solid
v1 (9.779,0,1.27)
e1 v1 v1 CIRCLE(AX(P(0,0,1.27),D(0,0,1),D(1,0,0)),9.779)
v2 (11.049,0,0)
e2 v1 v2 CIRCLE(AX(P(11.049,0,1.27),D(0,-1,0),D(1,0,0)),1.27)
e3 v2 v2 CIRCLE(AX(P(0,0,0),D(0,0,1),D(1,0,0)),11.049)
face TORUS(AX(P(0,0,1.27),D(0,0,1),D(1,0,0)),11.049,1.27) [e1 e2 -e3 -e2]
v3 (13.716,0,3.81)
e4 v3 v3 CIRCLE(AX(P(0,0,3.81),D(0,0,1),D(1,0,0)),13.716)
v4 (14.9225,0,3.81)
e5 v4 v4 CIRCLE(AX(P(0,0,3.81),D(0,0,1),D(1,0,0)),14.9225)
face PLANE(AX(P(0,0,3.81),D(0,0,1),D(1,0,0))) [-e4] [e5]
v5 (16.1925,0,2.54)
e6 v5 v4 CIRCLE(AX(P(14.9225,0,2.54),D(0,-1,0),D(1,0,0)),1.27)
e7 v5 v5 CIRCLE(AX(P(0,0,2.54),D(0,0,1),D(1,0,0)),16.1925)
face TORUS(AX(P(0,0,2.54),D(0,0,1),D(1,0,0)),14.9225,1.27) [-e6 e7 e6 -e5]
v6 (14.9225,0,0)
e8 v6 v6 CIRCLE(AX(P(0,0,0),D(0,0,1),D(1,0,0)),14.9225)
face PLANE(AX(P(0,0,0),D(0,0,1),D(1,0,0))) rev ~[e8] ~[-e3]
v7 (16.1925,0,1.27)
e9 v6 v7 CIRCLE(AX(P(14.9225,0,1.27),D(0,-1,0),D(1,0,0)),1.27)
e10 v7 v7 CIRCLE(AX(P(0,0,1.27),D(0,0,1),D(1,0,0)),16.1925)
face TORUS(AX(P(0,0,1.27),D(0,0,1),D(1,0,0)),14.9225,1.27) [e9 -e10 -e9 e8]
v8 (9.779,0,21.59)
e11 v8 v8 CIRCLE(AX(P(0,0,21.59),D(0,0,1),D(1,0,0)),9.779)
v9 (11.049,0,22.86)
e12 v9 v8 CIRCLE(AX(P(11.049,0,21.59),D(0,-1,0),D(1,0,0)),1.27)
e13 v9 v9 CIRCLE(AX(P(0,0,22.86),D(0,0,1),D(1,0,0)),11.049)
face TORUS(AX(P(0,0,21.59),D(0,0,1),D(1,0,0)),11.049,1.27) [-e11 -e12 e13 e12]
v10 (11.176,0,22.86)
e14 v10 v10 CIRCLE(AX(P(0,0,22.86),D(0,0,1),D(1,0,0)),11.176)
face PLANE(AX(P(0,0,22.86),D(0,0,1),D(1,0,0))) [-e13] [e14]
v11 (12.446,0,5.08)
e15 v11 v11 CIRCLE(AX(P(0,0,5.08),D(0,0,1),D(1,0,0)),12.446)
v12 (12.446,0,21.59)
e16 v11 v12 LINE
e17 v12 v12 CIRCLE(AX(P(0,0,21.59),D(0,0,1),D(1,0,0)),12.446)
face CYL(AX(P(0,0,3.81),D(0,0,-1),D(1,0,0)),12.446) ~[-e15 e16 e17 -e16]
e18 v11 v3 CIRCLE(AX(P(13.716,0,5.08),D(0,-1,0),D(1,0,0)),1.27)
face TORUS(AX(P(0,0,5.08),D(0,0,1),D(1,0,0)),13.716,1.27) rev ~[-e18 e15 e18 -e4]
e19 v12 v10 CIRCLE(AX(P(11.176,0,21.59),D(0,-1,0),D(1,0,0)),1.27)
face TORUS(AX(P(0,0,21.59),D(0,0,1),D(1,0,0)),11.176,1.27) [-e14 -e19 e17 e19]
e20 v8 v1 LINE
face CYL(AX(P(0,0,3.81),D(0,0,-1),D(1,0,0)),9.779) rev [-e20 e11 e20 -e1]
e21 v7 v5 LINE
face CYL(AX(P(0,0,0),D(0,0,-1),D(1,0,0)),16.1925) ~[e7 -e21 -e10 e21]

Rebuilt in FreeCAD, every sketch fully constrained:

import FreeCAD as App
import Part
import Sketcher

V = App.Vector
Q = App.Units.Quantity


def edges_at(feature, points):
    """Names of the edges that pass closest to the given points."""
    edges = feature.Shape.Edges
    near = lambda p: min(range(len(edges)), key=lambda i: edges[i].distToShape(Part.Vertex(*p))[0])
    return sorted({f"Edge{near(p) + 1}" for p in points})

doc = App.newDocument("Part")
params = doc.addObject("Spreadsheet::Sheet", "Params")
for row, (alias, value) in enumerate([
    ("sketch1_diameter", "0.77 in"),
    ("sketch1_diameter2", "1.275 in"),
    ("pad1_length", "0.15 in"),
    ("sketch2_diameter", "0.98 in"),
    ("sketch2_diameter2", "0.77 in"),
    ("pad2_length", "0.75 in"),
    ("fillet_radius", "0.05 in"),
], start=1):
    params.set(f"A{row}", alias)
    params.set(f"B{row}", "=" + value)
    params.setAlias(f"B{row}", alias)

body = doc.addObject("PartDesign::Body", "Body")

# Sketch on XY plane
sketch1 = body.newObject("Sketcher::SketchObject", "Sketch")
sketch1.AttachmentSupport = (doc.getObject("XY_Plane"), [""])
sketch1.MapMode = "FlatFace"
sketch1.addGeometry([
    Part.Circle(V(0, 0, 0), V(0, 0, 1), 16.1925),
    Part.Circle(V(0, 0, 0), V(0, 0, 1), 9.779),
], False)
sketch1.addConstraint([
    Sketcher.Constraint("Coincident", 0, 3, -1, 1),
    Sketcher.Constraint("Coincident", 1, 3, -1, 1),
    Sketcher.Constraint("Diameter", 1, Q("0.77 in")),
    Sketcher.Constraint("Diameter", 0, Q("1.275 in")),
])
sketch1.setExpression("Constraints[2]", "Params.sketch1_diameter")
sketch1.setExpression("Constraints[3]", "Params.sketch1_diameter2")
pad1 = body.newObject("PartDesign::Pad", "Pad")
pad1.Profile = sketch1
pad1.setExpression("Length", "Params.pad1_length")

# Sketch on XY plane
sketch2 = body.newObject("Sketcher::SketchObject", "Sketch001")
sketch2.AttachmentSupport = (doc.getObject("XY_Plane"), [""])
sketch2.MapMode = "FlatFace"
sketch2.AttachmentOffset = App.Placement(V(0, 0, 0.15 * 25.4), App.Rotation())
sketch2.addGeometry([
    Part.Circle(V(0, 0, 0), V(0, 0, 1), 12.446),
    Part.Circle(V(0, 0, 0), V(0, 0, 1), 9.779),
], False)
sketch2.addConstraint([
    Sketcher.Constraint("Coincident", 0, 3, -1, 1),
    Sketcher.Constraint("Coincident", 1, 3, -1, 1),
    Sketcher.Constraint("Diameter", 0, Q("0.98 in")),
    Sketcher.Constraint("Diameter", 1, Q("0.77 in")),
])
sketch2.setExpression("Constraints[2]", "Params.sketch2_diameter")
sketch2.setExpression("Constraints[3]", "Params.sketch2_diameter2")
pad2 = body.newObject("PartDesign::Pad", "Pad001")
pad2.Profile = sketch2
pad2.setExpression("Length", "Params.pad2_length")
doc.recompute()

fillet = body.newObject("PartDesign::Fillet", "Fillet")
fillet.Base = (pad2, edges_at(pad2, [
    (-12.446, 0, 22.86),
    (-16.192, 0, 3.81),
    (-9.779, 0, 22.86),
    (-16.192, 0, 0),
    (-9.779, 0, 0),
    (-12.446, 0, 3.81),
]))
fillet.setExpression("Radius", "Params.fillet_radius")

doc.recompute()
